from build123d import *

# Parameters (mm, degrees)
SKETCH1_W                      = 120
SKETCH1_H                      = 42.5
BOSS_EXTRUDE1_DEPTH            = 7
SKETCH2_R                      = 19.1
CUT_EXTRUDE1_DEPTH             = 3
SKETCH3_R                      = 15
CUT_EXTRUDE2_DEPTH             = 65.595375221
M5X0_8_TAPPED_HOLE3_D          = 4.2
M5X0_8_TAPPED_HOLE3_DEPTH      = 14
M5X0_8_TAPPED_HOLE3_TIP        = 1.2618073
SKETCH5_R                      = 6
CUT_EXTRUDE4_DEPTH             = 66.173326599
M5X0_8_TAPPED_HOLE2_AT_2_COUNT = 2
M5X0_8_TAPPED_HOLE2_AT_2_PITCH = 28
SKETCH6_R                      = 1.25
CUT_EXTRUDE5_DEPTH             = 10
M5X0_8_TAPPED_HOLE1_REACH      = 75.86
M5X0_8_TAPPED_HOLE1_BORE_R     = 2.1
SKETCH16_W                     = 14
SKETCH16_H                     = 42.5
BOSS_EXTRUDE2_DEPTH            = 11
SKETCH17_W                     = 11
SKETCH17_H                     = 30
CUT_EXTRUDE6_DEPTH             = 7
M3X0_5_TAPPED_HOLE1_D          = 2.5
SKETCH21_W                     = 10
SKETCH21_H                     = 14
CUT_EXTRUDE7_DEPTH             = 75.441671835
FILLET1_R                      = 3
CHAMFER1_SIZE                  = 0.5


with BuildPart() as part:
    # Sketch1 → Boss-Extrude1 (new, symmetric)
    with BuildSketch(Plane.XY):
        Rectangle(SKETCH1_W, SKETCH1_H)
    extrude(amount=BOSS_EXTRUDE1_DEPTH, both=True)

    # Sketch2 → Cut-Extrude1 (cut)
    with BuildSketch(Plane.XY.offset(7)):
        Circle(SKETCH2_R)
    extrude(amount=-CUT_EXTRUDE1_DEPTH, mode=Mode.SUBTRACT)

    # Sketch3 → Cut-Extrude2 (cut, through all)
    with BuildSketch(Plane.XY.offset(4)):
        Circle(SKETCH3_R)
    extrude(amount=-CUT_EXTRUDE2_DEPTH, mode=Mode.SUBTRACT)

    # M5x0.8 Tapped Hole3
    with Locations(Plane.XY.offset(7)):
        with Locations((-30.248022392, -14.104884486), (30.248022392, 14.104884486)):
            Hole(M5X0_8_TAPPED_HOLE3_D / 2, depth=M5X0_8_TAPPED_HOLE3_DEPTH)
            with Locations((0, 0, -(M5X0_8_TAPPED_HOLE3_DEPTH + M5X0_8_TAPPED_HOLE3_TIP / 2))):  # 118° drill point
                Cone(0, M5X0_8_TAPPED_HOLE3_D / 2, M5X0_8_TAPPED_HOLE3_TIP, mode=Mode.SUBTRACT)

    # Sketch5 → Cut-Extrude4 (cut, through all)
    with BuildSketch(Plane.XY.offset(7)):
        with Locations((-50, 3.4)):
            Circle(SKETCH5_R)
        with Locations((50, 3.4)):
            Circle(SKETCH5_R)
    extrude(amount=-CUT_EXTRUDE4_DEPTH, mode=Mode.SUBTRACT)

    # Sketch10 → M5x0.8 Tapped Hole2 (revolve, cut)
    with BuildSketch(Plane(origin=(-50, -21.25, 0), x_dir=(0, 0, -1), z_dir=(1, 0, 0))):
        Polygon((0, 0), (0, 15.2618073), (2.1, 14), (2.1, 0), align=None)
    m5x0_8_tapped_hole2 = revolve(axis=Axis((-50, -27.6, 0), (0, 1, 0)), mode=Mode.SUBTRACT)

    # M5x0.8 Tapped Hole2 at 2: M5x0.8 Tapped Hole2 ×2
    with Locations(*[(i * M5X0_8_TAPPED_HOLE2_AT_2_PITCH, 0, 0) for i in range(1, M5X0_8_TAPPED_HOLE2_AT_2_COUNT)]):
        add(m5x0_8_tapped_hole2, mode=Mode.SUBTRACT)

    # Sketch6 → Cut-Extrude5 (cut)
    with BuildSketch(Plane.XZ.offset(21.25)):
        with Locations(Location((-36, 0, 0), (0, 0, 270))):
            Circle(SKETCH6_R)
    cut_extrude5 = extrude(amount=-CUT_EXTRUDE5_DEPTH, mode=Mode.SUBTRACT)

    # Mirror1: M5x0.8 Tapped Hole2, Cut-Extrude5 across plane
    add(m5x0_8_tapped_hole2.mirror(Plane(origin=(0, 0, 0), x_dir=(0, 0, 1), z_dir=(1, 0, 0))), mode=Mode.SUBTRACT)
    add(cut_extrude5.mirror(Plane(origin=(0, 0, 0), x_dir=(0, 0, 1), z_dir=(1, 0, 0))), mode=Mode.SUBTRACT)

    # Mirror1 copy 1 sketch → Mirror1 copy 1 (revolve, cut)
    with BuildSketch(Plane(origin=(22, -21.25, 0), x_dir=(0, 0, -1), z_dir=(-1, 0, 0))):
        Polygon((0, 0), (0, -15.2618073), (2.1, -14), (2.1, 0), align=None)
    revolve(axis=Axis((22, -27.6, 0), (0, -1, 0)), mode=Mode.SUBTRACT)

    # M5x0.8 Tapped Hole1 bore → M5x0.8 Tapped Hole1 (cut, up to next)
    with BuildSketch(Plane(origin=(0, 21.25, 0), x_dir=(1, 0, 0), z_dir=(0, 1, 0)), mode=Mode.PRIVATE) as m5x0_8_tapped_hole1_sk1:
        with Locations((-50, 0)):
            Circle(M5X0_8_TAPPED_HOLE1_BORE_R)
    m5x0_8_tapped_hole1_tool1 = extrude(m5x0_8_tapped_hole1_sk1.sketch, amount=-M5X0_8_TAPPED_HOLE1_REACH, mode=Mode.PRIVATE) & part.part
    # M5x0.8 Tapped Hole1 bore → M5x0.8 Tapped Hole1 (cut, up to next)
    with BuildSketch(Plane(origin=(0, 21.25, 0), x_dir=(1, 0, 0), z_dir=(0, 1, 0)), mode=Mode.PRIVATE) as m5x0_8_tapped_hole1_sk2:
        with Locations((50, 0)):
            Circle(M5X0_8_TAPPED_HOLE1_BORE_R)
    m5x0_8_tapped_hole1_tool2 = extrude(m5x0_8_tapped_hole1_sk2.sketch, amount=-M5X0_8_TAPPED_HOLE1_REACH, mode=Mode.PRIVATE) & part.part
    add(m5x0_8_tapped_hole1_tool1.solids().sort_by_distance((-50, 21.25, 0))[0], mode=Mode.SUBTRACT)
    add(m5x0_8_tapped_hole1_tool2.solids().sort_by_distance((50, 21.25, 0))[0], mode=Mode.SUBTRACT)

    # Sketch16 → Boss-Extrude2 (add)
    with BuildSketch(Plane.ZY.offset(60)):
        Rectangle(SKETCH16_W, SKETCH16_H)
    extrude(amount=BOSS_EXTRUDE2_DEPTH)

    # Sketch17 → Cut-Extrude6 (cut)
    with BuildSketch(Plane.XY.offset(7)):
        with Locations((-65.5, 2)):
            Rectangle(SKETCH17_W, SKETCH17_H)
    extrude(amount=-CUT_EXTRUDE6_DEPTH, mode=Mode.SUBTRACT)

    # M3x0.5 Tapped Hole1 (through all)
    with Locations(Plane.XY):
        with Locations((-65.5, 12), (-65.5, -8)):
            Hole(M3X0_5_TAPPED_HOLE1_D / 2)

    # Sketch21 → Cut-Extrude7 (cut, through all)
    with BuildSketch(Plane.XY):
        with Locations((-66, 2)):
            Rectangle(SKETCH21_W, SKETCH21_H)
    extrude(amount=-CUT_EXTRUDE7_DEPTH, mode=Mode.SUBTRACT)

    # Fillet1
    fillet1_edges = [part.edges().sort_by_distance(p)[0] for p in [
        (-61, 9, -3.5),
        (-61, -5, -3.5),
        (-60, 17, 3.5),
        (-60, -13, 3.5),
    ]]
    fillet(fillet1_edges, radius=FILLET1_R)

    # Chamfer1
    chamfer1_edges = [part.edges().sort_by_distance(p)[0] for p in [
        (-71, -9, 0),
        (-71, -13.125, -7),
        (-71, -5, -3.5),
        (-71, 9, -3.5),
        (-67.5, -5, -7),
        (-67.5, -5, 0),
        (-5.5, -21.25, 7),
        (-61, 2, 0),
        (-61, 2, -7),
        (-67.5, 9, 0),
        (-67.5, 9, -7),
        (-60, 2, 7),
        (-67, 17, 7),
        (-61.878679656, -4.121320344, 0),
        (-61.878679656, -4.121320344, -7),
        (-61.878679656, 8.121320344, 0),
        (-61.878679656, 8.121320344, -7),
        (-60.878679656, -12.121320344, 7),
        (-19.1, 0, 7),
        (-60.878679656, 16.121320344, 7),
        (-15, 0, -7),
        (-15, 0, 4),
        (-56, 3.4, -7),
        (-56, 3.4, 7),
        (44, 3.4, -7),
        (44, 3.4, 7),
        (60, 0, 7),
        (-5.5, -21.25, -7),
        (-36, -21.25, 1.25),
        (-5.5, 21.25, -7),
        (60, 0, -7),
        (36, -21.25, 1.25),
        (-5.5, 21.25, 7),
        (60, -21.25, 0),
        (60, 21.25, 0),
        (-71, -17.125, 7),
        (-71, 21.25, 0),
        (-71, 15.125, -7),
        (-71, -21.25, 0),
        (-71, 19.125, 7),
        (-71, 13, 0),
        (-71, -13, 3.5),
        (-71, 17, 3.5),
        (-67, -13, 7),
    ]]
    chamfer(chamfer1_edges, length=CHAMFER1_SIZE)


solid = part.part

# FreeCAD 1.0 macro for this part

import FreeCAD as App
import Part
import Sketcher
Q = App.Units.Quantity


def edges_at(feature, points):
    """Names of the edges that pass closest to the given points."""
    edges = feature.Shape.Edges
    near = lambda p: min(range(len(edges)), key=lambda i: edges[i].distToShape(Part.Vertex(*p))[0])
    return sorted({f"Edge{near(p) + 1}" for p in points})


def add_polygon(sketch, points):
    """Adds a closed chain of lines whose ends are joined by coincident constraints."""
    first, n = sketch.GeometryCount, len(points)
    for a, b in zip(points, points[1:] + points[:1]):
        sketch.addGeometry(Part.LineSegment(App.Vector(*a, 0), App.Vector(*b, 0)), False)
    for i in range(n):
        sketch.addConstraint(Sketcher.Constraint("Coincident", first + i, 2, first + (i + 1) % n, 1))

doc = App.newDocument("Part")
body = doc.addObject("PartDesign::Body", "Body")

sketch1 = body.newObject("Sketcher::SketchObject", "Sketch")
sketch1.AttachmentSupport = (doc.getObject("XY_Plane"), [""])
sketch1.MapMode = "FlatFace"
add_polygon(sketch1, [(-60, 21.25), (-60, -21.25), (60, -21.25), (60, 21.25)])
sketch1.addConstraint(Sketcher.Constraint("Vertical", 0))
sketch1.addConstraint(Sketcher.Constraint("Horizontal", 1))
sketch1.addConstraint(Sketcher.Constraint("Vertical", 2))
sketch1.addConstraint(Sketcher.Constraint("Horizontal", 3))
sketch1.addConstraint(Sketcher.Constraint("Symmetric", 0, 2, 2, 2, -1, 1))
sketch1.addConstraint(Sketcher.Constraint("DistanceX", 1, 1, 1, 2, 120.0))
sketch1.addConstraint(Sketcher.Constraint("DistanceY", 0, 2, 0, 1, 42.5))
pad1 = body.newObject("PartDesign::Pad", "Pad")
pad1.Profile = sketch1
pad1.Length = 14
pad1.Midplane = True

sketch2 = body.newObject("Sketcher::SketchObject", "Sketch001")
sketch2.AttachmentSupport = (doc.getObject("XY_Plane"), [""])
sketch2.MapMode = "FlatFace"
sketch2.AttachmentOffset = App.Placement(App.Vector(0, 0, 7), App.Rotation())
sketch2.addGeometry(Part.Circle(App.Vector(0, 0, 0), App.Vector(0, 0, 1), 19.1), False)
sketch2.addConstraint(Sketcher.Constraint("Coincident", 0, 3, -1, 1))
sketch2.addConstraint(Sketcher.Constraint("Diameter", 0, 38.2))
pocket1 = body.newObject("PartDesign::Pocket", "Pocket")
pocket1.Profile = sketch2
pocket1.Length = 3

sketch3 = body.newObject("Sketcher::SketchObject", "Sketch002")
sketch3.AttachmentSupport = (doc.getObject("XY_Plane"), [""])
sketch3.MapMode = "FlatFace"
sketch3.AttachmentOffset = App.Placement(App.Vector(0, 0, 4), App.Rotation())
sketch3.addGeometry(Part.Circle(App.Vector(0, 0, 0), App.Vector(0, 0, 1), 15), False)
sketch3.addConstraint(Sketcher.Constraint("Coincident", 0, 3, -1, 1))
sketch3.addConstraint(Sketcher.Constraint("Diameter", 0, 30.0))
pocket2 = body.newObject("PartDesign::Pocket", "Pocket001")
pocket2.Profile = sketch3
pocket2.Type = "ThroughAll"

sketch4 = body.newObject("Sketcher::SketchObject", "Sketch003")
sketch4.AttachmentSupport = (doc.getObject("XY_Plane"), [""])
sketch4.MapMode = "FlatFace"
sketch4.AttachmentOffset = App.Placement(App.Vector(0, 0, 7), App.Rotation())
sketch4.addGeometry(Part.Circle(App.Vector(-30.248022, -14.104884, 0), App.Vector(0, 0, 1), 2.1), False)
sketch4.addGeometry(Part.Circle(App.Vector(30.248022, 14.104884, 0), App.Vector(0, 0, 1), 2.1), False)
sketch4.addConstraint(Sketcher.Constraint("Equal", 0, 1))
sketch4.addConstraint(Sketcher.Constraint("Symmetric", 0, 3, 1, 3, -1, 1))
sketch4.addConstraint(Sketcher.Constraint("Diameter", 0, 4.2))
sketch4.addConstraint(Sketcher.Constraint("DistanceY", 0, 3, 1, 3, 28.209769))
sketch4.addConstraint(Sketcher.Constraint("DistanceX", 0, 3, -1, 1, 30.248022))
doc.recompute()
hole = body.newObject("PartDesign::Hole", "Hole")
hole.Profile = sketch4
hole.ThreadType = "None"
hole.Diameter = 4.2
hole.DepthType = "Dimension"
hole.Depth = 14
hole.DrillPoint = "Angled"
hole.DrillPointAngle = 118

sketch5 = body.newObject("Sketcher::SketchObject", "Sketch004")
sketch5.AttachmentSupport = (doc.getObject("XY_Plane"), [""])
sketch5.MapMode = "FlatFace"
sketch5.AttachmentOffset = App.Placement(App.Vector(0, 0, 7), App.Rotation())
sketch5.addGeometry(Part.Circle(App.Vector(-50, 3.4, 0), App.Vector(0, 0, 1), 6), False)
sketch5.addGeometry(Part.Circle(App.Vector(50, 3.4, 0), App.Vector(0, 0, 1), 6), False)
sketch5.addConstraint(Sketcher.Constraint("Equal", 0, 1))
sketch5.addConstraint(Sketcher.Constraint("Symmetric", 0, 3, 1, 3, -2))
sketch5.addConstraint(Sketcher.Constraint("Diameter", 0, 12.0))
sketch5.addConstraint(Sketcher.Constraint("DistanceX", 0, 3, -1, 1, 50.0))
sketch5.addConstraint(Sketcher.Constraint("DistanceY", -1, 1, 0, 3, 3.4))
pocket3 = body.newObject("PartDesign::Pocket", "Pocket002")
pocket3.Profile = sketch5
pocket3.Type = "ThroughAll"

sketch6 = body.newObject("Sketcher::SketchObject", "Sketch005")
sketch6.AttachmentSupport = (doc.getObject("YZ_Plane"), [""])
sketch6.MapMode = "FlatFace"
sketch6.AttachmentOffset = App.Placement(App.Vector(0, 0, -50), App.Rotation())
add_polygon(sketch6, [(-5.988193, 0), (-21.25, 0), (-21.25, -2.1), (-7.25, -2.1)])
sketch6.addConstraint(Sketcher.Constraint("Horizontal", 0))
sketch6.addConstraint(Sketcher.Constraint("Vertical", 1))
sketch6.addConstraint(Sketcher.Constraint("Horizontal", 2))
sketch6.addConstraint(Sketcher.Constraint("PointOnObject", 0, 2, -1))
sketch6.addConstraint(Sketcher.Constraint("DistanceX", 2, 1, 2, 2, 14.0))
sketch6.addConstraint(Sketcher.Constraint("Angle", 3, Q("59 deg")))
sketch6.addConstraint(Sketcher.Constraint("DistanceY", 1, 2, 1, 1, 2.1))
sketch6.addConstraint(Sketcher.Constraint("DistanceX", 0, 2, -1, 1, 21.25))
groove = body.newObject("PartDesign::Groove", "Groove")
groove.Profile = sketch6
groove.ReferenceAxis = (sketch6, ["H_Axis"])
groove.Angle = 360
doc.recompute()

linearpattern = body.newObject("PartDesign::LinearPattern", "LinearPattern")
linearpattern.Originals = [groove]
linearpattern.Direction = (doc.getObject("X_Axis"), [""])
linearpattern.Mode = "offset"
linearpattern.Offset = 28
linearpattern.Occurrences = 2
body.Tip = linearpattern

sketch7 = body.newObject("Sketcher::SketchObject", "Sketch006")
sketch7.AttachmentSupport = (doc.getObject("XZ_Plane"), [""])
sketch7.MapMode = "FlatFace"
sketch7.AttachmentOffset = App.Placement(App.Vector(0, 0, 21.25), App.Rotation())
sketch7.addGeometry(Part.Circle(App.Vector(-36, 0, 0), App.Vector(0, 0, 1), 1.25), False)
sketch7.addConstraint(Sketcher.Constraint("PointOnObject", 0, 3, -1))
sketch7.addConstraint(Sketcher.Constraint("Diameter", 0, 2.5))
sketch7.addConstraint(Sketcher.Constraint("DistanceX", 0, 3, -1, 1, 36.0))
pocket4 = body.newObject("PartDesign::Pocket", "Pocket003")
pocket4.Profile = sketch7
pocket4.Length = 10
doc.recompute()

mirrored = body.newObject("PartDesign::Mirrored", "Mirrored")
mirrored.Originals = [groove, pocket4]
mirrored.MirrorPlane = (doc.getObject("YZ_Plane"), [""])
body.Tip = mirrored

sketch8 = body.newObject("Sketcher::SketchObject", "Sketch007")
sketch8.AttachmentSupport = (doc.getObject("YZ_Plane"), [""])
sketch8.MapMode = "FlatFace"
sketch8.AttachmentOffset = App.Placement(App.Vector(0, 0, 22), App.Rotation())
add_polygon(sketch8, [(-21.25, 0), (-5.988193, 0), (-7.25, -2.1), (-21.25, -2.1)])
sketch8.addConstraint(Sketcher.Constraint("Horizontal", 0))
sketch8.addConstraint(Sketcher.Constraint("Horizontal", 2))
sketch8.addConstraint(Sketcher.Constraint("Vertical", 3))
sketch8.addConstraint(Sketcher.Constraint("PointOnObject", 0, 2, -1))
sketch8.addConstraint(Sketcher.Constraint("DistanceX", 2, 2, 2, 1, 14.0))
sketch8.addConstraint(Sketcher.Constraint("Angle", 1, Q("-121 deg")))
sketch8.addConstraint(Sketcher.Constraint("DistanceY", 3, 1, 3, 2, 2.1))
sketch8.addConstraint(Sketcher.Constraint("DistanceX", 1, 2, -1, 1, 7.25))
groove2 = body.newObject("PartDesign::Groove", "Groove001")
groove2.Profile = sketch8
groove2.ReferenceAxis = (sketch8, ["H_Axis"])
groove2.Angle = 360

sketch9 = body.newObject("Sketcher::SketchObject", "Sketch008")
sketch9.AttachmentSupport = (doc.getObject("XZ_Plane"), [""])
sketch9.MapMode = "FlatFace"
sketch9.AttachmentOffset = App.Placement(App.Vector(0, 0, -21.25), App.Rotation())
sketch9.addGeometry(Part.Circle(App.Vector(-50, 0, 0), App.Vector(0, 0, 1), 2.1), False)
sketch9.addConstraint(Sketcher.Constraint("PointOnObject", 0, 3, -1))
sketch9.addConstraint(Sketcher.Constraint("Diameter", 0, 4.2))
sketch9.addConstraint(Sketcher.Constraint("DistanceX", 0, 3, -1, 1, 50.0))
pocket5 = body.newObject("PartDesign::Pocket", "Pocket004")
pocket5.Profile = sketch9
pocket5.Type = "UpToFirst"
pocket5.Reversed = True

sketch10 = body.newObject("Sketcher::SketchObject", "Sketch009")
sketch10.AttachmentSupport = (doc.getObject("XZ_Plane"), [""])
sketch10.MapMode = "FlatFace"
sketch10.AttachmentOffset = App.Placement(App.Vector(0, 0, -21.25), App.Rotation())
sketch10.addGeometry(Part.Circle(App.Vector(50, 0, 0), App.Vector(0, 0, 1), 2.1), False)
sketch10.addConstraint(Sketcher.Constraint("PointOnObject", 0, 3, -1))
sketch10.addConstraint(Sketcher.Constraint("Diameter", 0, 4.2))
sketch10.addConstraint(Sketcher.Constraint("DistanceX", -1, 1, 0, 3, 50.0))
pocket6 = body.newObject("PartDesign::Pocket", "Pocket005")
pocket6.Profile = sketch10
pocket6.Type = "UpToFirst"
pocket6.Reversed = True

sketch11 = body.newObject("Sketcher::SketchObject", "Sketch010")
sketch11.AttachmentSupport = (doc.getObject("YZ_Plane"), [""])
sketch11.MapMode = "FlatFace"
sketch11.AttachmentOffset = App.Placement(App.Vector(0, 0, -60), App.Rotation())
add_polygon(sketch11, [(21.25, -7), (-21.25, -7), (-21.25, 7), (21.25, 7)])
sketch11.addConstraint(Sketcher.Constraint("Horizontal", 0))
sketch11.addConstraint(Sketcher.Constraint("Vertical", 1))
sketch11.addConstraint(Sketcher.Constraint("Horizontal", 2))
sketch11.addConstraint(Sketcher.Constraint("Vertical", 3))
sketch11.addConstraint(Sketcher.Constraint("Symmetric", 0, 2, 2, 2, -1, 1))
sketch11.addConstraint(Sketcher.Constraint("DistanceY", 1, 1, 1, 2, 14.0))
sketch11.addConstraint(Sketcher.Constraint("DistanceX", 0, 2, 0, 1, 42.5))
pad2 = body.newObject("PartDesign::Pad", "Pad001")
pad2.Profile = sketch11
pad2.Length = 11
pad2.Reversed = True

sketch12 = body.newObject("Sketcher::SketchObject", "Sketch011")
sketch12.AttachmentSupport = (doc.getObject("XY_Plane"), [""])
sketch12.MapMode = "FlatFace"
sketch12.AttachmentOffset = App.Placement(App.Vector(0, 0, 7), App.Rotation())
add_polygon(sketch12, [(-71, 17), (-71, -13), (-60, -13), (-60, 17)])
sketch12.addConstraint(Sketcher.Constraint("Vertical", 0))
sketch12.addConstraint(Sketcher.Constraint("Horizontal", 1))
sketch12.addConstraint(Sketcher.Constraint("Vertical", 2))
sketch12.addConstraint(Sketcher.Constraint("Horizontal", 3))
sketch12.addConstraint(Sketcher.Constraint("DistanceX", 1, 1, 1, 2, 11.0))
sketch12.addConstraint(Sketcher.Constraint("DistanceY", 0, 2, 0, 1, 30.0))
sketch12.addConstraint(Sketcher.Constraint("DistanceX", 0, 2, -1, 1, 71.0))
sketch12.addConstraint(Sketcher.Constraint("DistanceY", 0, 2, -1, 1, 13.0))
pocket7 = body.newObject("PartDesign::Pocket", "Pocket006")
pocket7.Profile = sketch12
pocket7.Length = 7

sketch13 = body.newObject("Sketcher::SketchObject", "Sketch012")
sketch13.AttachmentSupport = (doc.getObject("XY_Plane"), [""])
sketch13.MapMode = "FlatFace"
sketch13.addGeometry(Part.Circle(App.Vector(-65.5, 12, 0), App.Vector(0, 0, 1), 1.25), False)
sketch13.addGeometry(Part.Circle(App.Vector(-65.5, -8, 0), App.Vector(0, 0, 1), 1.25), False)
sketch13.addConstraint(Sketcher.Constraint("Equal", 0, 1))
sketch13.addConstraint(Sketcher.Constraint("Vertical", 0, 3, 1, 3))
sketch13.addConstraint(Sketcher.Constraint("Diameter", 0, 2.5))
sketch13.addConstraint(Sketcher.Constraint("DistanceY", -1, 1, 0, 3, 12.0))
sketch13.addConstraint(Sketcher.Constraint("DistanceY", 1, 3, -1, 1, 8.0))
sketch13.addConstraint(Sketcher.Constraint("DistanceX", 0, 3, -1, 1, 65.5))
doc.recompute()
hole2 = body.newObject("PartDesign::Hole", "Hole001")
hole2.Profile = sketch13
hole2.ThreadType = "None"
hole2.Diameter = 2.5
hole2.DepthType = "ThroughAll"

sketch14 = body.newObject("Sketcher::SketchObject", "Sketch013")
sketch14.AttachmentSupport = (doc.getObject("XY_Plane"), [""])
sketch14.MapMode = "FlatFace"
add_polygon(sketch14, [(-71, 9), (-71, -5), (-61, -5), (-61, 9)])
sketch14.addConstraint(Sketcher.Constraint("Vertical", 0))
sketch14.addConstraint(Sketcher.Constraint("Horizontal", 1))
sketch14.addConstraint(Sketcher.Constraint("Vertical", 2))
sketch14.addConstraint(Sketcher.Constraint("Horizontal", 3))
sketch14.addConstraint(Sketcher.Constraint("DistanceX", 1, 1, 1, 2, 10.0))
sketch14.addConstraint(Sketcher.Constraint("DistanceY", 0, 2, 0, 1, 14.0))
sketch14.addConstraint(Sketcher.Constraint("DistanceX", 0, 2, -1, 1, 71.0))
sketch14.addConstraint(Sketcher.Constraint("DistanceY", 0, 2, -1, 1, 5.0))
pocket8 = body.newObject("PartDesign::Pocket", "Pocket007")
pocket8.Profile = sketch14
pocket8.Type = "ThroughAll"
doc.recompute()

fillet = body.newObject("PartDesign::Fillet", "Fillet")
fillet.Base = (pocket8, edges_at(pocket8, [
    (-61, 9, -3.5),
    (-61, -5, -3.5),
    (-60, 17, 3.5),
    (-60, -13, 3.5),
]))
fillet.Radius = 3
doc.recompute()

chamfer = body.newObject("PartDesign::Chamfer", "Chamfer")
chamfer.Base = (fillet, edges_at(fillet, [
    (-71, -9, 0),
    (-71, -13.125, -7),
    (-71, -5, -3.5),
    (-71, 9, -3.5),
    (-67.5, -5, -7),
    (-67.5, -5, 0),
    (-5.5, -21.25, 7),
    (-61, 2, 0),
    (-61, 2, -7),
    (-67.5, 9, 0),
    (-67.5, 9, -7),
    (-60, 2, 7),
    (-67, 17, 7),
    (-61.879, -4.121, 0),
    (-61.879, -4.121, -7),
    (-61.879, 8.121, 0),
    (-61.879, 8.121, -7),
    (-60.879, -12.121, 7),
    (-19.1, 0, 7),
    (-60.879, 16.121, 7),
    (-15, 0, -7),
    (-15, 0, 4),
    (-56, 3.4, -7),
    (-56, 3.4, 7),
    (44, 3.4, -7),
    (44, 3.4, 7),
    (60, 0, 7),
    (-5.5, -21.25, -7),
    (-36, -21.25, 1.25),
    (-5.5, 21.25, -7),
    (60, 0, -7),
    (36, -21.25, 1.25),
    (-5.5, 21.25, 7),
    (60, -21.25, 0),
    (60, 21.25, 0),
    (-71, -17.125, 7),
    (-71, 21.25, 0),
    (-71, 15.125, -7),
    (-71, -21.25, 0),
    (-71, 19.125, 7),
    (-71, 13, 0),
    (-71, -13, 3.5),
    (-71, 17, 3.5),
    (-67, -13, 7),
]))
chamfer.Size = 0.5

doc.recompute()
